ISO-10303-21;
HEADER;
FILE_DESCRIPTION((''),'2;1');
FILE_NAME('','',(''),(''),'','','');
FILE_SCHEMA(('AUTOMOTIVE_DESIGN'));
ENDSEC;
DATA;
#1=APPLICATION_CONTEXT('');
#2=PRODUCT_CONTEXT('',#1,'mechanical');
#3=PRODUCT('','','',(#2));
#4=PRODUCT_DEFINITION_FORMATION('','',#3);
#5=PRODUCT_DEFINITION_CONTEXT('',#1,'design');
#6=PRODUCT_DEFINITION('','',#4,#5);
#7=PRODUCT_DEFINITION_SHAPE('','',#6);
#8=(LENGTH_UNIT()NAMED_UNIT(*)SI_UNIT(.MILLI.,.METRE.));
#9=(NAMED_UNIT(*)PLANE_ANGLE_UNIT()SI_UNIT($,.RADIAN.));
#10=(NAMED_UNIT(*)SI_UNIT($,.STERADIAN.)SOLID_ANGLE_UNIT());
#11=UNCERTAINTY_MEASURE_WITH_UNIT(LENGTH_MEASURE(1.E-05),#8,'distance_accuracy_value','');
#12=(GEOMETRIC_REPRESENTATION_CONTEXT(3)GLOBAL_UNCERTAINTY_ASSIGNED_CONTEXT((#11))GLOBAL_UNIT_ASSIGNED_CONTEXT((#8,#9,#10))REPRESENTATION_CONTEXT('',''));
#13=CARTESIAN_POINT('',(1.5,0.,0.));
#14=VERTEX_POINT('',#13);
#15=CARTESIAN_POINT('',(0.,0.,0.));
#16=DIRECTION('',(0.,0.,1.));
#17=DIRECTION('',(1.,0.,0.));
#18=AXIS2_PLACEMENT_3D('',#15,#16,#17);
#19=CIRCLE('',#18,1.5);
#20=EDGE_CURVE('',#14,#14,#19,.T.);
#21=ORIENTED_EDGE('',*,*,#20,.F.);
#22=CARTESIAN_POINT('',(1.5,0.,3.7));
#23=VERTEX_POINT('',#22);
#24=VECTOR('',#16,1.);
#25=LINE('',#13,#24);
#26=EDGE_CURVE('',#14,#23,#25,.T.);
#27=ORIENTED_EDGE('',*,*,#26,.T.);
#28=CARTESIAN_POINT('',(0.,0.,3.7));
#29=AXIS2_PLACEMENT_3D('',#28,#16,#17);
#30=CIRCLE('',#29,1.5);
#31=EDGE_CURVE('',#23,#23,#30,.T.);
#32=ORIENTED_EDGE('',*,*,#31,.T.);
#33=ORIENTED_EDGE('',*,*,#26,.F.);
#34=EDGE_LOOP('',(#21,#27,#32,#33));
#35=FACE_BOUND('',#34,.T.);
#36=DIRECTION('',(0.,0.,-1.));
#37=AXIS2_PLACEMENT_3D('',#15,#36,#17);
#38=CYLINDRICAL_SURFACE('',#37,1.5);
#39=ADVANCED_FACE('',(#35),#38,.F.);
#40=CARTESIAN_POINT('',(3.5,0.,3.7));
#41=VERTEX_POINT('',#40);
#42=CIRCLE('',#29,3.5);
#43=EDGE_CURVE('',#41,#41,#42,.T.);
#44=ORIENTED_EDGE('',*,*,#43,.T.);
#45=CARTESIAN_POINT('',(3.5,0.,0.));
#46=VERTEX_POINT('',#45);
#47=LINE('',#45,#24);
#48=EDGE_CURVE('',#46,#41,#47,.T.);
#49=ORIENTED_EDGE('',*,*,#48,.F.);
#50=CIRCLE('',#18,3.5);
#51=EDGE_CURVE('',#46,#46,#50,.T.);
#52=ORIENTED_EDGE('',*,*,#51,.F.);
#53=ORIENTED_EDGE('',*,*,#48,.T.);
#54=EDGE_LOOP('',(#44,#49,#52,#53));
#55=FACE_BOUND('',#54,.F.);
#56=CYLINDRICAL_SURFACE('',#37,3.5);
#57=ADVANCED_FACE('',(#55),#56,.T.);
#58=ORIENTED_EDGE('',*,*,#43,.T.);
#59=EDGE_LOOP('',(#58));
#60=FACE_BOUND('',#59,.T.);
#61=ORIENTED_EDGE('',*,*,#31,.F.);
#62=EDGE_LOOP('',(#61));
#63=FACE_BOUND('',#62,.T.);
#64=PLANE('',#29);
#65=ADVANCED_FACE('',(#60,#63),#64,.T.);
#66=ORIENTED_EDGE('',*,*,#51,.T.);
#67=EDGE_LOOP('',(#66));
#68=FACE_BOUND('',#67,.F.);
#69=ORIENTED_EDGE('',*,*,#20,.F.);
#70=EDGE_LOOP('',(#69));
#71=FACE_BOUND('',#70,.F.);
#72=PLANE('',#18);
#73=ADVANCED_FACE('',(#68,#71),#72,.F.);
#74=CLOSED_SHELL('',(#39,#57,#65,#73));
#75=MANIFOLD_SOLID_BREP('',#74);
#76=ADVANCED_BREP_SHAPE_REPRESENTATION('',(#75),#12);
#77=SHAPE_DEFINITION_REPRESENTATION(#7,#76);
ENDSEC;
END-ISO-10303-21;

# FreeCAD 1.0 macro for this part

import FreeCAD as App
import Part
import Sketcher

V = App.Vector

doc = App.newDocument("Part")
params = doc.addObject("Spreadsheet::Sheet", "Params")
for row, (alias, value) in enumerate([
    ("sketch1_diameter", "7 mm"),
    ("sketch1_diameter2", "3 mm"),
    ("pad1_length", "3.7 mm"),
], start=1):
    params.set(f"A{row}", alias)
    params.set(f"B{row}", "=" + value)
    params.setAlias(f"B{row}", alias)

body = doc.addObject("PartDesign::Body", "Body")

sketch1 = doc.addObject("Sketcher::SketchObject", "Sketch")
body.addObject(sketch1)
sketch1.AttachmentSupport = (doc.XY_Plane, [""])
sketch1.MapMode = "FlatFace"
sketch1.addGeometry([
    Part.Circle(V(0, 0, 0), V(0, 0, 1), 3.5),
    Part.Circle(V(0, 0, 0), V(0, 0, 1), 1.5),
], False)
sketch1.addConstraint([
    Sketcher.Constraint("Coincident", 0, 3, -1, 1),
    Sketcher.Constraint("Coincident", 1, 3, -1, 1),
    Sketcher.Constraint("Diameter", 0, 7.0),
    Sketcher.Constraint("Diameter", 1, 3.0),
])
sketch1.setExpression("Constraints[2]", "Params.sketch1_diameter")
sketch1.setExpression("Constraints[3]", "Params.sketch1_diameter2")
pad1 = doc.addObject("PartDesign::Pad", "Pad")
body.addObject(pad1)
pad1.Profile = sketch1
pad1.setExpression("Length", "Params.pad1_length")

doc.recompute()
